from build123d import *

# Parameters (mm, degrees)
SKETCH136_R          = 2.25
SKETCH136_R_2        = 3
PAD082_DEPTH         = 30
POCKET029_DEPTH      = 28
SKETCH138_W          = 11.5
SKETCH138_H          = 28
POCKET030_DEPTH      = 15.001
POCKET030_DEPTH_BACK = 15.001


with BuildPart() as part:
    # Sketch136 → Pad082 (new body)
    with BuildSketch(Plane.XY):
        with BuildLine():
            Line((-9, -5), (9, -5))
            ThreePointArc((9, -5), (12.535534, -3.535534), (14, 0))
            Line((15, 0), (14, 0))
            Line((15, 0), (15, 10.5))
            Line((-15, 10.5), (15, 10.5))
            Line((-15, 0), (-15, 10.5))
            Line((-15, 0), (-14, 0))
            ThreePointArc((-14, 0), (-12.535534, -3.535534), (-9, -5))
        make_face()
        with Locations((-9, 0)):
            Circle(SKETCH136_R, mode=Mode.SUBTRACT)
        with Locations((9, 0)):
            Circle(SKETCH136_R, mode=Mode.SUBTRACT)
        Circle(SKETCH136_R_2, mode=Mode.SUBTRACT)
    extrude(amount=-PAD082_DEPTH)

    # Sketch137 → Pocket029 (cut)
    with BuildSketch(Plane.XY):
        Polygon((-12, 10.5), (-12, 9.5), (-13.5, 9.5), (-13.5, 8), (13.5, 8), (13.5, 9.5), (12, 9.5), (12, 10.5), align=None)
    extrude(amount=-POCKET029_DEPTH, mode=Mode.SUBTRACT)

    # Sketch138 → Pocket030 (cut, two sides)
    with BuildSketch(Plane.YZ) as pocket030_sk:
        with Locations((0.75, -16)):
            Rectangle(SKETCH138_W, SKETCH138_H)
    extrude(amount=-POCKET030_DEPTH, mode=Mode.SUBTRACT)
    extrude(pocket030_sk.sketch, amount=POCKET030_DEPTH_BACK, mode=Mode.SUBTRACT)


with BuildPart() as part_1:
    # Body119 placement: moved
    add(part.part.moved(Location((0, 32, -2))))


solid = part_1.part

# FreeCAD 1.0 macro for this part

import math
import FreeCAD as App
import Part
import Sketcher
Q = App.Units.Quantity

doc = App.newDocument("Part")
body = doc.addObject("PartDesign::Body", "Body")

# Sketch on XY plane
sketch1 = body.newObject("Sketcher::SketchObject", "Sketch")
sketch1.AttachmentSupport = (doc.getObject("XY_Plane"), [""])
sketch1.MapMode = "FlatFace"
sketch1.addGeometry(Part.LineSegment(App.Vector(-9, -5, 0), App.Vector(9, -5, 0)), False)
sketch1.addGeometry(Part.ArcOfCircle(Part.Circle(App.Vector(9, 0, 0), App.Vector(0, 0, 1), 5), math.radians(-90.000004), math.radians(0.000004)), False)
sketch1.addGeometry(Part.LineSegment(App.Vector(14, 0, 0), App.Vector(15, 0, 0)), False)
sketch1.addGeometry(Part.LineSegment(App.Vector(15, 0, 0), App.Vector(15, 10.5, 0)), False)
sketch1.addGeometry(Part.LineSegment(App.Vector(15, 10.5, 0), App.Vector(-15, 10.5, 0)), False)
sketch1.addGeometry(Part.LineSegment(App.Vector(-15, 10.5, 0), App.Vector(-15, 0, 0)), False)
sketch1.addGeometry(Part.LineSegment(App.Vector(-15, 0, 0), App.Vector(-14, 0, 0)), False)
sketch1.addGeometry(Part.ArcOfCircle(Part.Circle(App.Vector(-9, 0, 0), App.Vector(0, 0, 1), 5), math.radians(179.999996), math.radians(270.000004)), False)
sketch1.addGeometry(Part.Circle(App.Vector(-9, 0, 0), App.Vector(0, 0, 1), 2.25), False)
sketch1.addGeometry(Part.Circle(App.Vector(0, 0, 0), App.Vector(0, 0, 1), 3), False)
sketch1.addGeometry(Part.Circle(App.Vector(9, 0, 0), App.Vector(0, 0, 1), 2.25), False)
sketch1.addConstraint(Sketcher.Constraint("Tangent", 0, 2, 1, 1))
sketch1.addConstraint(Sketcher.Constraint("Coincident", 1, 2, 2, 1))
sketch1.addConstraint(Sketcher.Constraint("Coincident", 2, 2, 3, 1))
sketch1.addConstraint(Sketcher.Constraint("Coincident", 3, 2, 4, 1))
sketch1.addConstraint(Sketcher.Constraint("Coincident", 4, 2, 5, 1))
sketch1.addConstraint(Sketcher.Constraint("Coincident", 5, 2, 6, 1))
sketch1.addConstraint(Sketcher.Constraint("Coincident", 6, 2, 7, 1))
sketch1.addConstraint(Sketcher.Constraint("Tangent", 7, 2, 0, 1))
sketch1.addConstraint(Sketcher.Constraint("Horizontal", 0))
sketch1.addConstraint(Sketcher.Constraint("Horizontal", 2))
sketch1.addConstraint(Sketcher.Constraint("Vertical", 3))
sketch1.addConstraint(Sketcher.Constraint("Horizontal", 4))
sketch1.addConstraint(Sketcher.Constraint("Vertical", 5))
sketch1.addConstraint(Sketcher.Constraint("Horizontal", 6))
sketch1.addConstraint(Sketcher.Constraint("Coincident", 9, 3, -1, 1))
sketch1.addConstraint(Sketcher.Constraint("Coincident", 8, 3, 7, 3))
sketch1.addConstraint(Sketcher.Constraint("Coincident", 10, 3, 1, 3))
sketch1.addConstraint(Sketcher.Constraint("Equal", 1, 7))
sketch1.addConstraint(Sketcher.Constraint("Equal", 8, 10))
sketch1.addConstraint(Sketcher.Constraint("Symmetric", 1, 3, 7, 3, -1, 1))
sketch1.addConstraint(Sketcher.Constraint("Symmetric", 2, 2, 5, 2, -1, 1))
sketch1.addConstraint(Sketcher.Constraint("PointOnObject", 1, 2, -1))
sketch1.addConstraint(Sketcher.Constraint("Diameter", 9, Q("6 mm")))
sketch1.addConstraint(Sketcher.Constraint("Radius", 1, Q("5 mm")))
sketch1.addConstraint(Sketcher.Constraint("Diameter", 8, Q("4.5 mm")))
sketch1.addConstraint(Sketcher.Constraint("DistanceX", 0, 1, 0, 2, Q("18 mm")))
sketch1.addConstraint(Sketcher.Constraint("DistanceX", 2, 1, 2, 2, Q("1 mm")))
sketch1.addConstraint(Sketcher.Constraint("DistanceY", 3, 1, 3, 2, Q("10.5 mm")))
pad1 = body.newObject("PartDesign::Pad", "Pad")
pad1.Profile = sketch1
pad1.Length = 30
pad1.Reversed = True

# Sketch on XY plane
sketch2 = body.newObject("Sketcher::SketchObject", "Sketch001")
sketch2.AttachmentSupport = (doc.getObject("XY_Plane"), [""])
sketch2.MapMode = "FlatFace"
sketch2.addGeometry(Part.LineSegment(App.Vector(-12, 10.5, 0), App.Vector(-12, 9.5, 0)), False)
sketch2.addGeometry(Part.LineSegment(App.Vector(-12, 9.5, 0), App.Vector(-13.5, 9.5, 0)), False)
sketch2.addGeometry(Part.LineSegment(App.Vector(-13.5, 9.5, 0), App.Vector(-13.5, 8, 0)), False)
sketch2.addGeometry(Part.LineSegment(App.Vector(-13.5, 8, 0), App.Vector(13.5, 8, 0)), False)
sketch2.addGeometry(Part.LineSegment(App.Vector(13.5, 8, 0), App.Vector(13.5, 9.5, 0)), False)
sketch2.addGeometry(Part.LineSegment(App.Vector(13.5, 9.5, 0), App.Vector(12, 9.5, 0)), False)
sketch2.addGeometry(Part.LineSegment(App.Vector(12, 9.5, 0), App.Vector(12, 10.5, 0)), False)
sketch2.addGeometry(Part.LineSegment(App.Vector(12, 10.5, 0), App.Vector(-12, 10.5, 0)), False)
sketch2.addConstraint(Sketcher.Constraint("Coincident", 0, 2, 1, 1))
sketch2.addConstraint(Sketcher.Constraint("Coincident", 1, 2, 2, 1))
sketch2.addConstraint(Sketcher.Constraint("Coincident", 2, 2, 3, 1))
sketch2.addConstraint(Sketcher.Constraint("Coincident", 3, 2, 4, 1))
sketch2.addConstraint(Sketcher.Constraint("Coincident", 4, 2, 5, 1))
sketch2.addConstraint(Sketcher.Constraint("Coincident", 5, 2, 6, 1))
sketch2.addConstraint(Sketcher.Constraint("Coincident", 6, 2, 7, 1))
sketch2.addConstraint(Sketcher.Constraint("Coincident", 7, 2, 0, 1))
sketch2.addConstraint(Sketcher.Constraint("Vertical", 0))
sketch2.addConstraint(Sketcher.Constraint("Horizontal", 1))
sketch2.addConstraint(Sketcher.Constraint("Vertical", 2))
sketch2.addConstraint(Sketcher.Constraint("Horizontal", 3))
sketch2.addConstraint(Sketcher.Constraint("Vertical", 4))
sketch2.addConstraint(Sketcher.Constraint("Horizontal", 5))
sketch2.addConstraint(Sketcher.Constraint("Vertical", 6))
sketch2.addConstraint(Sketcher.Constraint("Horizontal", 7))
sketch2.addConstraint(Sketcher.Constraint("Symmetric", 1, 2, 4, 2, -2))
sketch2.addConstraint(Sketcher.Constraint("Equal", 1, 5))
sketch2.addConstraint(Sketcher.Constraint("Equal", 5, 2))
sketch2.addConstraint(Sketcher.Constraint("DistanceX", 3, 1, 3, 2, Q("27 mm")))
sketch2.addConstraint(Sketcher.Constraint("DistanceX", 7, 2, 7, 1, Q("24 mm")))
sketch2.addConstraint(Sketcher.Constraint("DistanceY", 0, 2, 0, 1, Q("1 mm")))
sketch2.addConstraint(Sketcher.Constraint("DistanceY", -1, 1, 2, 2, Q("8 mm")))
pocket1 = body.newObject("PartDesign::Pocket", "Pocket")
pocket1.Profile = sketch2
pocket1.Length = 28

# Sketch on YZ plane
sketch3 = body.newObject("Sketcher::SketchObject", "Sketch002")
sketch3.AttachmentSupport = (doc.getObject("YZ_Plane"), [""])
sketch3.MapMode = "FlatFace"
sketch3.addGeometry(Part.LineSegment(App.Vector(-5, -2, 0), App.Vector(-5, -30, 0)), False)
sketch3.addGeometry(Part.LineSegment(App.Vector(-5, -30, 0), App.Vector(6.5, -30, 0)), False)
sketch3.addGeometry(Part.LineSegment(App.Vector(6.5, -30, 0), App.Vector(6.5, -2, 0)), False)
sketch3.addGeometry(Part.LineSegment(App.Vector(6.5, -2, 0), App.Vector(-5, -2, 0)), False)
sketch3.addConstraint(Sketcher.Constraint("Coincident", 0, 2, 1, 1))
sketch3.addConstraint(Sketcher.Constraint("Coincident", 1, 2, 2, 1))
sketch3.addConstraint(Sketcher.Constraint("Coincident", 2, 2, 3, 1))
sketch3.addConstraint(Sketcher.Constraint("Coincident", 3, 2, 0, 1))
sketch3.addConstraint(Sketcher.Constraint("Vertical", 0))
sketch3.addConstraint(Sketcher.Constraint("Horizontal", 1))
sketch3.addConstraint(Sketcher.Constraint("Vertical", 2))
sketch3.addConstraint(Sketcher.Constraint("Horizontal", 3))
sketch3.addConstraint(Sketcher.Constraint("DistanceY", 0, 2, 0, 1, Q("28 mm")))
sketch3.addConstraint(Sketcher.Constraint("DistanceX", 1, 1, 1, 2, Q("11.5 mm")))
sketch3.addConstraint(Sketcher.Constraint("DistanceX", 0, 2, -1, 1, Q("5 mm")))
sketch3.addConstraint(Sketcher.Constraint("DistanceY", 0, 2, -1, 1, Q("30 mm")))
pocket2 = body.newObject("PartDesign::Pocket", "Pocket001")
pocket2.Profile = sketch3
pocket2.Type = "ThroughAll"
pocket2.Midplane = True
body2 = doc.addObject("PartDesign::Body", "Body001")
doc.recompute()

body.Placement = App.Placement(App.Vector(0, 32, -2), App.Rotation(App.Vector(0, 0, 1), 0))
boolean = body2.newObject("PartDesign::Boolean", "Boolean")
boolean.Type = "Fuse"
boolean.addObjects([body])

doc.recompute()
